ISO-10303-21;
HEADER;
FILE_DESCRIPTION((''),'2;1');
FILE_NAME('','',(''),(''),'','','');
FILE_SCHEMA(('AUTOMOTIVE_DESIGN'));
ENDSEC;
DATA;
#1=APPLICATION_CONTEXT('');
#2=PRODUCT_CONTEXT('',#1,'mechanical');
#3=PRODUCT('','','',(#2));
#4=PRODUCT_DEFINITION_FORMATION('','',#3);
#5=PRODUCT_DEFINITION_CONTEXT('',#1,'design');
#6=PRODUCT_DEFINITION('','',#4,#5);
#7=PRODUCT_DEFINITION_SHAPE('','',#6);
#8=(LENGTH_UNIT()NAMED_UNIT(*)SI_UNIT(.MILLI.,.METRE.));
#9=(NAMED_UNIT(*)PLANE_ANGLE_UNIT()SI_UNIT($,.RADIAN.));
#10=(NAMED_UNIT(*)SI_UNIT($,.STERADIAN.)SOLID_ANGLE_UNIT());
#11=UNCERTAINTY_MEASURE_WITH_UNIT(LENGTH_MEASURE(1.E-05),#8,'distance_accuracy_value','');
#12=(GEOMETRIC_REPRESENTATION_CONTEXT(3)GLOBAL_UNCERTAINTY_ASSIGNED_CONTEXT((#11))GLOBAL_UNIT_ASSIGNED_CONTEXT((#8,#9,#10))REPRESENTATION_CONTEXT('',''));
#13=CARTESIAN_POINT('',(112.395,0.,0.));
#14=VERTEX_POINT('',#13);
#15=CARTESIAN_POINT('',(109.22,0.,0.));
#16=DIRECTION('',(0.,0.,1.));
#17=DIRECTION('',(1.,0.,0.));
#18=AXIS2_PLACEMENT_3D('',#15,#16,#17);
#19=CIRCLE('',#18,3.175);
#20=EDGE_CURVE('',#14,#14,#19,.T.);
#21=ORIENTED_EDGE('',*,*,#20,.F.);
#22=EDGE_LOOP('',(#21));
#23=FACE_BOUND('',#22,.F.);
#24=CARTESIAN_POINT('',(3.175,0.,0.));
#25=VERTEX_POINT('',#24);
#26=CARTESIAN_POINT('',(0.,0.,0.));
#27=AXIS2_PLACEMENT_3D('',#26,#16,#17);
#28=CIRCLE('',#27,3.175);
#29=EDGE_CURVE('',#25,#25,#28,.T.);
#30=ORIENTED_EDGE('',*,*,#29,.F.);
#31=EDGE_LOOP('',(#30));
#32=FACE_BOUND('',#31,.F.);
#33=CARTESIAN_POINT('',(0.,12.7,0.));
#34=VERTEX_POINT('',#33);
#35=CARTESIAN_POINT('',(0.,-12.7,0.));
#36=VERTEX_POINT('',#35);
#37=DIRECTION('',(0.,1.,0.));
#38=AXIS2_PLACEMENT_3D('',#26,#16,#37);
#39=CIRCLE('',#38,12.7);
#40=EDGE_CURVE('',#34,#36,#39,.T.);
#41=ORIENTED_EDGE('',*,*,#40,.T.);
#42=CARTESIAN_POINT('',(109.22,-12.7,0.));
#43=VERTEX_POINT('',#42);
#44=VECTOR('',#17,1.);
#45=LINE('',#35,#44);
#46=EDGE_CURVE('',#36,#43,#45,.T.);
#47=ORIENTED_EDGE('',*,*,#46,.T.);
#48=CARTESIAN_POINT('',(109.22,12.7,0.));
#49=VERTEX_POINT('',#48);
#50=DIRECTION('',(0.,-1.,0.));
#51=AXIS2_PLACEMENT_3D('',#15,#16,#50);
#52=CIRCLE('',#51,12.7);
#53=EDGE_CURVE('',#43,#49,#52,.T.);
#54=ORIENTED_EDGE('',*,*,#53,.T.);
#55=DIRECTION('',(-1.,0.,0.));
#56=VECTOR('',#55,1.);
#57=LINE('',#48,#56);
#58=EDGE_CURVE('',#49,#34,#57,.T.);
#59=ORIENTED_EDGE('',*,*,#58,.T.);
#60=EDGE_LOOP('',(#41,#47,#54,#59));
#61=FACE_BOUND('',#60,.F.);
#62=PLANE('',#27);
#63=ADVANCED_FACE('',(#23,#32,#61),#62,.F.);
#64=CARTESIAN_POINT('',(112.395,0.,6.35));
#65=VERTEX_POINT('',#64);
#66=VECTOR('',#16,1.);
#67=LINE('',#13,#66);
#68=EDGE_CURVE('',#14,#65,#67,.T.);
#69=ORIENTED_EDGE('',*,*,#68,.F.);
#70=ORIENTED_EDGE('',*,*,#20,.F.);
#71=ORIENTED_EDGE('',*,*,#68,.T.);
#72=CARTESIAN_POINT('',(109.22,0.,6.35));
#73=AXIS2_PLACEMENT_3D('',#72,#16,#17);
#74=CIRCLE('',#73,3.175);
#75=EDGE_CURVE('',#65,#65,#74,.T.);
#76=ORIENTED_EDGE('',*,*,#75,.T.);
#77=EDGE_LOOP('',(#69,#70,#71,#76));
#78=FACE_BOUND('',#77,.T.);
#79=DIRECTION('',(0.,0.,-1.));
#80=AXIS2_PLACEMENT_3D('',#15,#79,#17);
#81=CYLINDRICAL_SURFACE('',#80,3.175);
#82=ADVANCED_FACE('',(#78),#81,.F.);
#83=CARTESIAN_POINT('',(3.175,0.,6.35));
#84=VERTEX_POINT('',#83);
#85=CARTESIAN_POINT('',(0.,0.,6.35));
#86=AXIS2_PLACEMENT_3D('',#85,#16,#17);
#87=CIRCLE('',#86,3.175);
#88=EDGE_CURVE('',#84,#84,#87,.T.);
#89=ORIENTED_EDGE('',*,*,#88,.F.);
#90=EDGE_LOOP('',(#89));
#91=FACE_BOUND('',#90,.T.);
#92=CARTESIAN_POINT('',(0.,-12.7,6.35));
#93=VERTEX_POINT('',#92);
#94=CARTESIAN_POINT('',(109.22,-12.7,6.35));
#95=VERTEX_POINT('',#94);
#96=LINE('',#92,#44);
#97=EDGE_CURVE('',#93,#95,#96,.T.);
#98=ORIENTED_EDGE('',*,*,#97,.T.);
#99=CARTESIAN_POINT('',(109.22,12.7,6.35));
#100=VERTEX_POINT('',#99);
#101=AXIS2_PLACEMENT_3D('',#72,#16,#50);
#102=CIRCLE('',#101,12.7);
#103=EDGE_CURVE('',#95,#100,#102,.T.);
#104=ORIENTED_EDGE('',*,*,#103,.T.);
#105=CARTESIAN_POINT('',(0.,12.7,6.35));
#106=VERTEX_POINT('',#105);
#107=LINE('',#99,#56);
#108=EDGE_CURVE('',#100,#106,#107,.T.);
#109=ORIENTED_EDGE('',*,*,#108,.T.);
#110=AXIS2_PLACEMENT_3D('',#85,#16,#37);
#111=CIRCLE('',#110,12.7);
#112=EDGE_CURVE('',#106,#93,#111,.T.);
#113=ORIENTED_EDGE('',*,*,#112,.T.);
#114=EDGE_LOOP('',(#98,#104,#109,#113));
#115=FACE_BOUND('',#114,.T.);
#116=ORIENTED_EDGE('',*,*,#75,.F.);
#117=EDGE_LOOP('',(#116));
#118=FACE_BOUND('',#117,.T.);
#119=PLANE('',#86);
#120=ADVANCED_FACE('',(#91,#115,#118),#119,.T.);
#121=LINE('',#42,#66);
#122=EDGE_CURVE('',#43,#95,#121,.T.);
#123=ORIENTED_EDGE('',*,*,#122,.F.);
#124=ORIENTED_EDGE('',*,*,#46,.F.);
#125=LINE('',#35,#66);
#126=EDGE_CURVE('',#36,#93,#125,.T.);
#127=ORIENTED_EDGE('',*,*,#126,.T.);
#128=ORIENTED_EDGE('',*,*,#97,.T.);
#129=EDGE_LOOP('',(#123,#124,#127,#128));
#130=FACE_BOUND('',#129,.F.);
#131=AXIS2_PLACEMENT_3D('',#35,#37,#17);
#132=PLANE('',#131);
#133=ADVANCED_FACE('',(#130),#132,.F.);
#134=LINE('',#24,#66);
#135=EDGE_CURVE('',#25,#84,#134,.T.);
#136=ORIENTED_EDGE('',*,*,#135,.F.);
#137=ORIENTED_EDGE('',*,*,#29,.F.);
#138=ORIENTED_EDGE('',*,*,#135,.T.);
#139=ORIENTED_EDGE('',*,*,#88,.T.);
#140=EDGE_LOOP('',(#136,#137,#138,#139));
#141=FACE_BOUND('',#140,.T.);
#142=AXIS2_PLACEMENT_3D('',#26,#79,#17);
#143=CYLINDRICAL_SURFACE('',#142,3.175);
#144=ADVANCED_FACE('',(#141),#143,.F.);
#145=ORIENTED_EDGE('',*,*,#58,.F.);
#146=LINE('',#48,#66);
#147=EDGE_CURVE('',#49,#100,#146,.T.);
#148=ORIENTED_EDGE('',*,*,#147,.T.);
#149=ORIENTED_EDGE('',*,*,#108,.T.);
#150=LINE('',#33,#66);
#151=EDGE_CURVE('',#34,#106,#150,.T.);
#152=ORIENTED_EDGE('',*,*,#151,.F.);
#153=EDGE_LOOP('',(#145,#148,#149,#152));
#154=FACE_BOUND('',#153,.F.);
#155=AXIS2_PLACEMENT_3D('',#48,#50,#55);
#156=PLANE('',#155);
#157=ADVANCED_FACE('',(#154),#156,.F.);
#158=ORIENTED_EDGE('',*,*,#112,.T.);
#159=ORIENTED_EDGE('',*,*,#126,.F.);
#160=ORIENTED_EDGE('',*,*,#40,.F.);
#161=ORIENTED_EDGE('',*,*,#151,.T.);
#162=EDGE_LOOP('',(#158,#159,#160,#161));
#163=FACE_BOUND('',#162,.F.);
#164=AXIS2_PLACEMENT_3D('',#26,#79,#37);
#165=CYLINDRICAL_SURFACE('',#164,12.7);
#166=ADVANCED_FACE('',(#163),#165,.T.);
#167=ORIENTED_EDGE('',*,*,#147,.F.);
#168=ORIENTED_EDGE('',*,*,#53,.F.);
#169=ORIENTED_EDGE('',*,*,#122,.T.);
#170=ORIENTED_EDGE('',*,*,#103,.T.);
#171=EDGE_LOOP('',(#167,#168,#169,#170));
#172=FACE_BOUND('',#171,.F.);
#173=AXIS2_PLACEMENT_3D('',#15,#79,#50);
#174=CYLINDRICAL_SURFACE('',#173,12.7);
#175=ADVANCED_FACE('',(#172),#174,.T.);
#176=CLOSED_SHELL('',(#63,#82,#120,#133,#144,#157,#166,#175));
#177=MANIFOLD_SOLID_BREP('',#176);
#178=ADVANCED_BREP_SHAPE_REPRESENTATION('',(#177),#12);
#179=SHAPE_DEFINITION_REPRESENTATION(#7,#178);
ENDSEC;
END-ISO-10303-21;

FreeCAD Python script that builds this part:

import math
import FreeCAD as App
import Part
import Sketcher

V = App.Vector
Q = App.Units.Quantity

doc = App.newDocument("Part")
body = doc.addObject("PartDesign::Body", "Body")

sketch1 = body.newObject("Sketcher::SketchObject", "Sketch")
sketch1.AttachmentSupport = (doc.getObject("XY_Plane"), [""])
sketch1.MapMode = "FlatFace"
sketch1.addGeometry([
    Part.ArcOfCircle(Part.Circle(V(0, 0, 0), V(0, 0, 1), 12.7), math.radians(90), math.radians(270)),
    Part.LineSegment(V(0, -12.7, 0), V(109.2, -12.7, 0)),
    Part.ArcOfCircle(Part.Circle(V(109.2, 0, 0), V(0, 0, 1), 12.7), math.radians(-90), math.radians(90)),
    Part.LineSegment(V(109.2, 12.7, 0), V(0, 12.7, 0)),
    Part.Circle(V(0, 0, 0), V(0, 0, 1), 3.2),
    Part.Circle(V(109.2, 0, 0), V(0, 0, 1), 3.2),
], False)
sketch1.addConstraint([
    Sketcher.Constraint("Tangent", 0, 2, 1, 1),
    Sketcher.Constraint("Tangent", 1, 2, 2, 1),
    Sketcher.Constraint("Tangent", 2, 2, 3, 1),
    Sketcher.Constraint("Tangent", 3, 2, 0, 1),
    Sketcher.Constraint("Horizontal", 1),
    Sketcher.Constraint("Horizontal", 3),
    Sketcher.Constraint("Coincident", 0, 3, -1, 1),
    Sketcher.Constraint("Coincident", 4, 3, -1, 1),
    Sketcher.Constraint("Coincident", 5, 3, 2, 3),
    Sketcher.Constraint("Equal", 4, 5),
    Sketcher.Constraint("Radius", 0, Q("0.5 in")),
    Sketcher.Constraint("Diameter", 4, Q("0.25 in")),
    Sketcher.Constraint("DistanceX", 1, 1, 1, 2, Q("4.3 in")),
])
pad1 = body.newObject("PartDesign::Pad", "Pad")
pad1.Profile = sketch1
pad1.Length = Q("0.25 in")

doc.recompute()
